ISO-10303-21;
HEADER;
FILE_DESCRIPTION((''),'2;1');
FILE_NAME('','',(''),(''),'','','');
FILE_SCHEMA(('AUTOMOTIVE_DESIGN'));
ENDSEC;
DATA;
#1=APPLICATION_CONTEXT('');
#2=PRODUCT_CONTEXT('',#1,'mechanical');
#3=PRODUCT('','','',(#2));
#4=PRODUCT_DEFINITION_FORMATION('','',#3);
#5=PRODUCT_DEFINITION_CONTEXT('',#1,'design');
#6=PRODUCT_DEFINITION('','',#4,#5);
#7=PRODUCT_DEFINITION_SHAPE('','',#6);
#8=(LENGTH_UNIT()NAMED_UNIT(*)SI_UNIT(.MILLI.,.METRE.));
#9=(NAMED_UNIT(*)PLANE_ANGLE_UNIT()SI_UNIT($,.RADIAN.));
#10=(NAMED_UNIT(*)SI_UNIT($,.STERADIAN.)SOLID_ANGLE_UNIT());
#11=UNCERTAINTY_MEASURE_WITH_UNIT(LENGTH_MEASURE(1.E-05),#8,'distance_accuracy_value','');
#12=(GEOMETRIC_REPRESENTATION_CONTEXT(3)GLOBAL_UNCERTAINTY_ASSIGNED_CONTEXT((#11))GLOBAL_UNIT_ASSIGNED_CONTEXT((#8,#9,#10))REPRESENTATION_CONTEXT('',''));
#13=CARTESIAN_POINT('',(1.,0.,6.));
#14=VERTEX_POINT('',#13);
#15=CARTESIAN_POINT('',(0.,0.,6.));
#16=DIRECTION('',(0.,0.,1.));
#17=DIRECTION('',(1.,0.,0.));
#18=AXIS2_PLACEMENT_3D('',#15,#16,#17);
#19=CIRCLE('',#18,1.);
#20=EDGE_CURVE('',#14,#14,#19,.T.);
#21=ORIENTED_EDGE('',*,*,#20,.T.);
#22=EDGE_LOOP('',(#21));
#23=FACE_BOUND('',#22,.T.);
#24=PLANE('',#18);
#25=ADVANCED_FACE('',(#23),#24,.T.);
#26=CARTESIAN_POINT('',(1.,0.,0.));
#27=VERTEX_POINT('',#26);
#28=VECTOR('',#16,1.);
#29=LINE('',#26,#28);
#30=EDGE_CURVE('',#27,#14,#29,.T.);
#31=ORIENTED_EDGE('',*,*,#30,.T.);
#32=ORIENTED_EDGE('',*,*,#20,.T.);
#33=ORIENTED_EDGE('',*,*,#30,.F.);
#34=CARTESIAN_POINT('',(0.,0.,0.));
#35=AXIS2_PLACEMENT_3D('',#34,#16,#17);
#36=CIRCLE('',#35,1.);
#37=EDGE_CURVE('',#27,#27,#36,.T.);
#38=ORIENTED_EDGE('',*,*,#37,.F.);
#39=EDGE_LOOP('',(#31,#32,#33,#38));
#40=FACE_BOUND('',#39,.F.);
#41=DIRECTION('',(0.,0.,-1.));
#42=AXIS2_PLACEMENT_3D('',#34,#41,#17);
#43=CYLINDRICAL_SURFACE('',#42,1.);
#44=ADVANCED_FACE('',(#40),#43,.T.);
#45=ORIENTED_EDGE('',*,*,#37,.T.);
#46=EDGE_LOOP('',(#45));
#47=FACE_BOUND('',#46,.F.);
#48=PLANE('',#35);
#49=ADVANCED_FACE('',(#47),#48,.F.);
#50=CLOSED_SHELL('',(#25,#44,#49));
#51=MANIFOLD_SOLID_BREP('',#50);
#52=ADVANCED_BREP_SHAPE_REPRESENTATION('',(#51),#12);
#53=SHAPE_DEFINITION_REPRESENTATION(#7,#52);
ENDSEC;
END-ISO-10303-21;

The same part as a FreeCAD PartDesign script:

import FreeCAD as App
import Part
import Sketcher

V = App.Vector
Q = App.Units.Quantity

doc = App.newDocument("Part")
params = doc.addObject("Spreadsheet::Sheet", "Params")
for row, (alias, value) in enumerate([
    ("sketch1_diameter", "2 mm"),
    ("pad1_length", "6 mm"),
], start=1):
    params.set(f"A{row}", alias)
    params.set(f"B{row}", "=" + value)
    params.setAlias(f"B{row}", alias)

body = doc.addObject("PartDesign::Body", "Body")

# Sketch on XY plane
sketch1 = body.newObject("Sketcher::SketchObject", "Sketch")
sketch1.AttachmentSupport = (doc.getObject("XY_Plane"), [""])
sketch1.MapMode = "FlatFace"
sketch1.addGeometry(Part.Circle(V(0, 0, 0), V(0, 0, 1), 1), False)
sketch1.addConstraint(Sketcher.Constraint("Coincident", 0, 3, -1, 1))
sketch1.addConstraint(Sketcher.Constraint("Diameter", 0, Q("2 mm")))
sketch1.setExpression("Constraints[1]", "Params.sketch1_diameter")
pad1 = body.newObject("PartDesign::Pad", "Pad")
pad1.Profile = sketch1
pad1.setExpression("Length", "Params.pad1_length")

doc.recompute()
